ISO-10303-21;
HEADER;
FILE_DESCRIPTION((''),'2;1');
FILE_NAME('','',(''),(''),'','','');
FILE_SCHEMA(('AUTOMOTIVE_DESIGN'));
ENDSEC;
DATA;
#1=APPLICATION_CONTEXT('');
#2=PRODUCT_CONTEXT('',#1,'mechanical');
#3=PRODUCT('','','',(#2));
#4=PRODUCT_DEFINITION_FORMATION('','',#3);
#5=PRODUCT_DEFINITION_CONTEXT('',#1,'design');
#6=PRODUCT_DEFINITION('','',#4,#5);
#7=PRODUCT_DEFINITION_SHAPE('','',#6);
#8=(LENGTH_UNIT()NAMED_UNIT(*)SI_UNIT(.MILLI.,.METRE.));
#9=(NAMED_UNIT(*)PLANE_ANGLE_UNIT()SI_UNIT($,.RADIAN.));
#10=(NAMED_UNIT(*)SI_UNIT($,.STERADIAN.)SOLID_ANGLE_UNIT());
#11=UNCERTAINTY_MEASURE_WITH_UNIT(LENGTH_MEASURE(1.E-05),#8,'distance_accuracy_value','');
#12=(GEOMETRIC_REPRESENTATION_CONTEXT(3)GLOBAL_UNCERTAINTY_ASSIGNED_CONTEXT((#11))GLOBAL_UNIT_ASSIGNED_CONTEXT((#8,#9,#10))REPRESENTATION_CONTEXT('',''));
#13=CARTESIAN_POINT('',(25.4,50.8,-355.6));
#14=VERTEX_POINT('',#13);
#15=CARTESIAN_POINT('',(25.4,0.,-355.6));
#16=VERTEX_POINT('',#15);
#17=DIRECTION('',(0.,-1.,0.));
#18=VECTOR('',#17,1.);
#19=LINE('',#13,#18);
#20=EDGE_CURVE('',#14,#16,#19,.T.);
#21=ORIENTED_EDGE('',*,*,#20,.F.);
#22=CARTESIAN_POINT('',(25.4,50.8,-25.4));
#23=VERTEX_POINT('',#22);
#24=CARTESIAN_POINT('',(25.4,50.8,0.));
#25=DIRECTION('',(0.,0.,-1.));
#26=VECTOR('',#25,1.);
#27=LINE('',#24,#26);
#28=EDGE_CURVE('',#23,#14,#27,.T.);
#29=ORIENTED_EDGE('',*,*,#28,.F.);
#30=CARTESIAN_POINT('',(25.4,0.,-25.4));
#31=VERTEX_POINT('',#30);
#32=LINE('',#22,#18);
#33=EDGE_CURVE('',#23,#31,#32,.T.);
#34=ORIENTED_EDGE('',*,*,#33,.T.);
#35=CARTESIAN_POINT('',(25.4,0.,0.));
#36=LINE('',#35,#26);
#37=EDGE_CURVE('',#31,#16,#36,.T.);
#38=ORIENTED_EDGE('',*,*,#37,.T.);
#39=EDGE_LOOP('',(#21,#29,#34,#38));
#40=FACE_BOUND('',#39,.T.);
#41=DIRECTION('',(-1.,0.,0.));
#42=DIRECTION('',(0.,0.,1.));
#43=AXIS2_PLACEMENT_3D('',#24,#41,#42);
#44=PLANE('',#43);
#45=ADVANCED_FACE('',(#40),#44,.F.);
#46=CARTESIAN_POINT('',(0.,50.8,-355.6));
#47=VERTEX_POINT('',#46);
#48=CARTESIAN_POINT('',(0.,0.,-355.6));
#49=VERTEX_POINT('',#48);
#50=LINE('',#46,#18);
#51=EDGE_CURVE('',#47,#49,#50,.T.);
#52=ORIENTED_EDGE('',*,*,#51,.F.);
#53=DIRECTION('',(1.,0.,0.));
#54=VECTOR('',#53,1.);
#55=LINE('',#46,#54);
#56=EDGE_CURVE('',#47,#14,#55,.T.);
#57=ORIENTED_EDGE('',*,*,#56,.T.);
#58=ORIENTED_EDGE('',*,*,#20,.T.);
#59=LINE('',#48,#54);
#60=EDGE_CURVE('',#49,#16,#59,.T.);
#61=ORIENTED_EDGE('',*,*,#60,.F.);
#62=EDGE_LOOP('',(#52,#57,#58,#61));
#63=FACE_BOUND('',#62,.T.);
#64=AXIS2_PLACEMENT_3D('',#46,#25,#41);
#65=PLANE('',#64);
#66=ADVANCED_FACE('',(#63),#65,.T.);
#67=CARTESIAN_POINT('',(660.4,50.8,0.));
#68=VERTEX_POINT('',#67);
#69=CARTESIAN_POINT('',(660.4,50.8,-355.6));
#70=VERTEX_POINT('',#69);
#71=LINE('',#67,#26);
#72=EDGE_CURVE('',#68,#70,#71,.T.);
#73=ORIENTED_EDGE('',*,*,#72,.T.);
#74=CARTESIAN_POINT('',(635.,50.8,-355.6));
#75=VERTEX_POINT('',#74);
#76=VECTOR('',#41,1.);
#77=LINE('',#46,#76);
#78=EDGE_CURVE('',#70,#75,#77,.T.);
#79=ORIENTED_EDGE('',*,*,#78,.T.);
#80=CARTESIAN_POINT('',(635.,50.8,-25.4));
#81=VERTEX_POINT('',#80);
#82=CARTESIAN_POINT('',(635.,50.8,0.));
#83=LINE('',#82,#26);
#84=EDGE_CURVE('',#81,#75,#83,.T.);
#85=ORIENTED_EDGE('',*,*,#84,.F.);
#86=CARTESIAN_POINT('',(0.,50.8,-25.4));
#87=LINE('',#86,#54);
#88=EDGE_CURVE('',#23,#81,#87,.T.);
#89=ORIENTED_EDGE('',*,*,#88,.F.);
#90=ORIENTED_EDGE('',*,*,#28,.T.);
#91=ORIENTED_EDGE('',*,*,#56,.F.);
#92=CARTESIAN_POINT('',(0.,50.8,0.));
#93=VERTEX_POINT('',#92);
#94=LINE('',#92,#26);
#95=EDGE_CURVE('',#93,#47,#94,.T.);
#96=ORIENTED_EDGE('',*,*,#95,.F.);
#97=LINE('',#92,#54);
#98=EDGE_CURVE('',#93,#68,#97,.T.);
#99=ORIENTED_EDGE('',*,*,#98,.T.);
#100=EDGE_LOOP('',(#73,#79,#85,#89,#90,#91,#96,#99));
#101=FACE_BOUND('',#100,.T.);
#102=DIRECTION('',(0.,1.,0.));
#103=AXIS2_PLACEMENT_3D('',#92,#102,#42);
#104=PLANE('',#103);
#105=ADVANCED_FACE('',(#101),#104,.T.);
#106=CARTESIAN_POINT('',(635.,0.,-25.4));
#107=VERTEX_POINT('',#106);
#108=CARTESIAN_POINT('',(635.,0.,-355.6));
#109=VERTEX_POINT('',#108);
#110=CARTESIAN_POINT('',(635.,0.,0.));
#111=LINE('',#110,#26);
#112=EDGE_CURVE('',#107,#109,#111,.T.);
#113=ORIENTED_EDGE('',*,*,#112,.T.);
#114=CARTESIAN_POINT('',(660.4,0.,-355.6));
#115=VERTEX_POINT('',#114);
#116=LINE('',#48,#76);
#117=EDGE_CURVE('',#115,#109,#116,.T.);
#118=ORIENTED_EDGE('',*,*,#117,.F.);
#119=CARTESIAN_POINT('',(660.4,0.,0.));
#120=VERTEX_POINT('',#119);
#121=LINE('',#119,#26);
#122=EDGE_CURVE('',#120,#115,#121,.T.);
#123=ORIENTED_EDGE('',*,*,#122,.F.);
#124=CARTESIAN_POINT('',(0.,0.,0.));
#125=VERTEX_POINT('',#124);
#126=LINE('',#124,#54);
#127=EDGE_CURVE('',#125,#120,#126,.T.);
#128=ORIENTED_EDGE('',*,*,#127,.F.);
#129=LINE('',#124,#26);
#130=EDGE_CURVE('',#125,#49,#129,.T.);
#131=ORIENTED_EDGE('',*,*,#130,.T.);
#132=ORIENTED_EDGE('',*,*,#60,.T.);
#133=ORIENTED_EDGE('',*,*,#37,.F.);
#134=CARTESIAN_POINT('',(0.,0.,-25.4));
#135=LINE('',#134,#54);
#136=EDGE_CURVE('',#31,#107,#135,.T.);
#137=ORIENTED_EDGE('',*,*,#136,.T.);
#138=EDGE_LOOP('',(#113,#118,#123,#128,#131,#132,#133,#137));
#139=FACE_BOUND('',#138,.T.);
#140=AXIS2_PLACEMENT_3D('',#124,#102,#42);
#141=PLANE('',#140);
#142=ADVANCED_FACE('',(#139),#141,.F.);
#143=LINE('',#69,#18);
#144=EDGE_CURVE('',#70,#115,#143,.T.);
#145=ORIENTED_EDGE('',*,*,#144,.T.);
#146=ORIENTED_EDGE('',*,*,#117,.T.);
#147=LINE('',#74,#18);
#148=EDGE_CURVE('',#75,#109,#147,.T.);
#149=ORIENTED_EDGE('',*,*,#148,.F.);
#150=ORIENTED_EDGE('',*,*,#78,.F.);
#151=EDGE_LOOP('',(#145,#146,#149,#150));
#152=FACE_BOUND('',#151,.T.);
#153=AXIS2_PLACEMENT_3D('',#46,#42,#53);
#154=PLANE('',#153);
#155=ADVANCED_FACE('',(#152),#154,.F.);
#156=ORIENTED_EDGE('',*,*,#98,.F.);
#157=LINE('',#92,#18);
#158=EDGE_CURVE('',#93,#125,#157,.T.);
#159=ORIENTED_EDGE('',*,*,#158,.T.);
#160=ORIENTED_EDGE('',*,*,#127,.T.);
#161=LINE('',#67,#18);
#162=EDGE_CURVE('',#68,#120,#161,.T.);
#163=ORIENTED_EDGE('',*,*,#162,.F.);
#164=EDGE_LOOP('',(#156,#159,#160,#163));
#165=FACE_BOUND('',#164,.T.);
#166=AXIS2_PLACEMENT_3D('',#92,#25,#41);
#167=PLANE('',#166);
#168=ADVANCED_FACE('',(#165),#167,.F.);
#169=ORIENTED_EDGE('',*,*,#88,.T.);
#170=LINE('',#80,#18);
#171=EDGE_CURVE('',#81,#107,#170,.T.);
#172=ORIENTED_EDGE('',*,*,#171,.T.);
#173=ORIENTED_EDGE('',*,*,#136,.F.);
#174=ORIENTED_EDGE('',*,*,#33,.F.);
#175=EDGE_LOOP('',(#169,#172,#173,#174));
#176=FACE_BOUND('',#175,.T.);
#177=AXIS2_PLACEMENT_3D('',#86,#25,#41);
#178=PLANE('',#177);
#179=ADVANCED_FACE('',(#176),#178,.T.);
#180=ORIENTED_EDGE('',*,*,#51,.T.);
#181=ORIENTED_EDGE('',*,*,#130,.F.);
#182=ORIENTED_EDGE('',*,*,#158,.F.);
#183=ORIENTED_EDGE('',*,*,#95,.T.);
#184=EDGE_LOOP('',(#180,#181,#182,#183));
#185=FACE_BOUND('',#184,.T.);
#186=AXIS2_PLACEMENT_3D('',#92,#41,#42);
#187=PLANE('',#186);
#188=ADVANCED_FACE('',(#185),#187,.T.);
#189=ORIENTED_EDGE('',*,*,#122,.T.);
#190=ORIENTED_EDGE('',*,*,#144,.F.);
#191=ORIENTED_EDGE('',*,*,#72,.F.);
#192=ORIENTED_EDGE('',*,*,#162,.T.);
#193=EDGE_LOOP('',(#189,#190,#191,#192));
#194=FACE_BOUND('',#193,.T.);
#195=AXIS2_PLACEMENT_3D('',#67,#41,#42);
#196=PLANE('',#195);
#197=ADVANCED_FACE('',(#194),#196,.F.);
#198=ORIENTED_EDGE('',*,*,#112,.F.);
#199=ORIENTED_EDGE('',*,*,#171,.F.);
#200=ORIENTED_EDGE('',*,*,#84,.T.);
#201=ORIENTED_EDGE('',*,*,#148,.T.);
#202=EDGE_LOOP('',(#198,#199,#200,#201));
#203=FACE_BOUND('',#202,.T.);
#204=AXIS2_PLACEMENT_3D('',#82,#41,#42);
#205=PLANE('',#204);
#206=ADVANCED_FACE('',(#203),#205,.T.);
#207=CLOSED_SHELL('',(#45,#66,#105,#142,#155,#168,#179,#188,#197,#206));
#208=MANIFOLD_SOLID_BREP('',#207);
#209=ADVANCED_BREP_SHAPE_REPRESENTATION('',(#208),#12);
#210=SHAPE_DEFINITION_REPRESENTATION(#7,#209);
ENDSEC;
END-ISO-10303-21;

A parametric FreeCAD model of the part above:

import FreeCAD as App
import Part
import Sketcher

V = App.Vector
Q = App.Units.Quantity

doc = App.newDocument("Part")
body = doc.addObject("PartDesign::Body", "Body")

# Sketch on XZ plane
sketch1 = body.newObject("Sketcher::SketchObject", "Sketch")
sketch1.AttachmentSupport = (doc.getObject("XZ_Plane"), [""])
sketch1.MapMode = "FlatFace"
sketch1.addGeometry(Part.LineSegment(V(0, 0, 0), V(660, 0, 0)), False)
sketch1.addGeometry(Part.LineSegment(V(660, 0, 0), V(660, -356, 0)), False)
sketch1.addGeometry(Part.LineSegment(V(660, -356, 0), V(635, -356, 0)), False)
sketch1.addGeometry(Part.LineSegment(V(635, -356, 0), V(635, -25, 0)), False)
sketch1.addGeometry(Part.LineSegment(V(635, -25, 0), V(25, -25, 0)), False)
sketch1.addGeometry(Part.LineSegment(V(25, -25, 0), V(25, -356, 0)), False)
sketch1.addGeometry(Part.LineSegment(V(25, -356, 0), V(0, -356, 0)), False)
sketch1.addGeometry(Part.LineSegment(V(0, -356, 0), V(0, 0, 0)), False)
sketch1.addConstraint(Sketcher.Constraint("Coincident", 0, 2, 1, 1))
sketch1.addConstraint(Sketcher.Constraint("Coincident", 1, 2, 2, 1))
sketch1.addConstraint(Sketcher.Constraint("Coincident", 2, 2, 3, 1))
sketch1.addConstraint(Sketcher.Constraint("Coincident", 3, 2, 4, 1))
sketch1.addConstraint(Sketcher.Constraint("Coincident", 4, 2, 5, 1))
sketch1.addConstraint(Sketcher.Constraint("Coincident", 5, 2, 6, 1))
sketch1.addConstraint(Sketcher.Constraint("Coincident", 6, 2, 7, 1))
sketch1.addConstraint(Sketcher.Constraint("Coincident", 7, 2, 0, 1))
sketch1.addConstraint(Sketcher.Constraint("Horizontal", 0))
sketch1.addConstraint(Sketcher.Constraint("Vertical", 1))
sketch1.addConstraint(Sketcher.Constraint("Horizontal", 2))
sketch1.addConstraint(Sketcher.Constraint("Vertical", 3))
sketch1.addConstraint(Sketcher.Constraint("Horizontal", 4))
sketch1.addConstraint(Sketcher.Constraint("Vertical", 5))
sketch1.addConstraint(Sketcher.Constraint("Horizontal", 6))
sketch1.addConstraint(Sketcher.Constraint("Vertical", 7))
sketch1.addConstraint(Sketcher.Constraint("Coincident", 7, 2, -1, 1))
sketch1.addConstraint(Sketcher.Constraint("Horizontal", 2, 2, 5, 2))
sketch1.addConstraint(Sketcher.Constraint("Equal", 2, 6))
sketch1.addConstraint(Sketcher.Constraint("DistanceX", 0, 1, 0, 2, Q("26 in")))
sketch1.addConstraint(Sketcher.Constraint("DistanceX", 2, 2, 2, 1, Q("1 in")))
sketch1.addConstraint(Sketcher.Constraint("DistanceY", 1, 2, 1, 1, Q("14 in")))
sketch1.addConstraint(Sketcher.Constraint("DistanceY", 3, 1, 3, 2, Q("13 in")))
pad1 = body.newObject("PartDesign::Pad", "Pad")
pad1.Profile = sketch1
pad1.Length = Q("2 in")
pad1.Reversed = True

doc.recompute()
